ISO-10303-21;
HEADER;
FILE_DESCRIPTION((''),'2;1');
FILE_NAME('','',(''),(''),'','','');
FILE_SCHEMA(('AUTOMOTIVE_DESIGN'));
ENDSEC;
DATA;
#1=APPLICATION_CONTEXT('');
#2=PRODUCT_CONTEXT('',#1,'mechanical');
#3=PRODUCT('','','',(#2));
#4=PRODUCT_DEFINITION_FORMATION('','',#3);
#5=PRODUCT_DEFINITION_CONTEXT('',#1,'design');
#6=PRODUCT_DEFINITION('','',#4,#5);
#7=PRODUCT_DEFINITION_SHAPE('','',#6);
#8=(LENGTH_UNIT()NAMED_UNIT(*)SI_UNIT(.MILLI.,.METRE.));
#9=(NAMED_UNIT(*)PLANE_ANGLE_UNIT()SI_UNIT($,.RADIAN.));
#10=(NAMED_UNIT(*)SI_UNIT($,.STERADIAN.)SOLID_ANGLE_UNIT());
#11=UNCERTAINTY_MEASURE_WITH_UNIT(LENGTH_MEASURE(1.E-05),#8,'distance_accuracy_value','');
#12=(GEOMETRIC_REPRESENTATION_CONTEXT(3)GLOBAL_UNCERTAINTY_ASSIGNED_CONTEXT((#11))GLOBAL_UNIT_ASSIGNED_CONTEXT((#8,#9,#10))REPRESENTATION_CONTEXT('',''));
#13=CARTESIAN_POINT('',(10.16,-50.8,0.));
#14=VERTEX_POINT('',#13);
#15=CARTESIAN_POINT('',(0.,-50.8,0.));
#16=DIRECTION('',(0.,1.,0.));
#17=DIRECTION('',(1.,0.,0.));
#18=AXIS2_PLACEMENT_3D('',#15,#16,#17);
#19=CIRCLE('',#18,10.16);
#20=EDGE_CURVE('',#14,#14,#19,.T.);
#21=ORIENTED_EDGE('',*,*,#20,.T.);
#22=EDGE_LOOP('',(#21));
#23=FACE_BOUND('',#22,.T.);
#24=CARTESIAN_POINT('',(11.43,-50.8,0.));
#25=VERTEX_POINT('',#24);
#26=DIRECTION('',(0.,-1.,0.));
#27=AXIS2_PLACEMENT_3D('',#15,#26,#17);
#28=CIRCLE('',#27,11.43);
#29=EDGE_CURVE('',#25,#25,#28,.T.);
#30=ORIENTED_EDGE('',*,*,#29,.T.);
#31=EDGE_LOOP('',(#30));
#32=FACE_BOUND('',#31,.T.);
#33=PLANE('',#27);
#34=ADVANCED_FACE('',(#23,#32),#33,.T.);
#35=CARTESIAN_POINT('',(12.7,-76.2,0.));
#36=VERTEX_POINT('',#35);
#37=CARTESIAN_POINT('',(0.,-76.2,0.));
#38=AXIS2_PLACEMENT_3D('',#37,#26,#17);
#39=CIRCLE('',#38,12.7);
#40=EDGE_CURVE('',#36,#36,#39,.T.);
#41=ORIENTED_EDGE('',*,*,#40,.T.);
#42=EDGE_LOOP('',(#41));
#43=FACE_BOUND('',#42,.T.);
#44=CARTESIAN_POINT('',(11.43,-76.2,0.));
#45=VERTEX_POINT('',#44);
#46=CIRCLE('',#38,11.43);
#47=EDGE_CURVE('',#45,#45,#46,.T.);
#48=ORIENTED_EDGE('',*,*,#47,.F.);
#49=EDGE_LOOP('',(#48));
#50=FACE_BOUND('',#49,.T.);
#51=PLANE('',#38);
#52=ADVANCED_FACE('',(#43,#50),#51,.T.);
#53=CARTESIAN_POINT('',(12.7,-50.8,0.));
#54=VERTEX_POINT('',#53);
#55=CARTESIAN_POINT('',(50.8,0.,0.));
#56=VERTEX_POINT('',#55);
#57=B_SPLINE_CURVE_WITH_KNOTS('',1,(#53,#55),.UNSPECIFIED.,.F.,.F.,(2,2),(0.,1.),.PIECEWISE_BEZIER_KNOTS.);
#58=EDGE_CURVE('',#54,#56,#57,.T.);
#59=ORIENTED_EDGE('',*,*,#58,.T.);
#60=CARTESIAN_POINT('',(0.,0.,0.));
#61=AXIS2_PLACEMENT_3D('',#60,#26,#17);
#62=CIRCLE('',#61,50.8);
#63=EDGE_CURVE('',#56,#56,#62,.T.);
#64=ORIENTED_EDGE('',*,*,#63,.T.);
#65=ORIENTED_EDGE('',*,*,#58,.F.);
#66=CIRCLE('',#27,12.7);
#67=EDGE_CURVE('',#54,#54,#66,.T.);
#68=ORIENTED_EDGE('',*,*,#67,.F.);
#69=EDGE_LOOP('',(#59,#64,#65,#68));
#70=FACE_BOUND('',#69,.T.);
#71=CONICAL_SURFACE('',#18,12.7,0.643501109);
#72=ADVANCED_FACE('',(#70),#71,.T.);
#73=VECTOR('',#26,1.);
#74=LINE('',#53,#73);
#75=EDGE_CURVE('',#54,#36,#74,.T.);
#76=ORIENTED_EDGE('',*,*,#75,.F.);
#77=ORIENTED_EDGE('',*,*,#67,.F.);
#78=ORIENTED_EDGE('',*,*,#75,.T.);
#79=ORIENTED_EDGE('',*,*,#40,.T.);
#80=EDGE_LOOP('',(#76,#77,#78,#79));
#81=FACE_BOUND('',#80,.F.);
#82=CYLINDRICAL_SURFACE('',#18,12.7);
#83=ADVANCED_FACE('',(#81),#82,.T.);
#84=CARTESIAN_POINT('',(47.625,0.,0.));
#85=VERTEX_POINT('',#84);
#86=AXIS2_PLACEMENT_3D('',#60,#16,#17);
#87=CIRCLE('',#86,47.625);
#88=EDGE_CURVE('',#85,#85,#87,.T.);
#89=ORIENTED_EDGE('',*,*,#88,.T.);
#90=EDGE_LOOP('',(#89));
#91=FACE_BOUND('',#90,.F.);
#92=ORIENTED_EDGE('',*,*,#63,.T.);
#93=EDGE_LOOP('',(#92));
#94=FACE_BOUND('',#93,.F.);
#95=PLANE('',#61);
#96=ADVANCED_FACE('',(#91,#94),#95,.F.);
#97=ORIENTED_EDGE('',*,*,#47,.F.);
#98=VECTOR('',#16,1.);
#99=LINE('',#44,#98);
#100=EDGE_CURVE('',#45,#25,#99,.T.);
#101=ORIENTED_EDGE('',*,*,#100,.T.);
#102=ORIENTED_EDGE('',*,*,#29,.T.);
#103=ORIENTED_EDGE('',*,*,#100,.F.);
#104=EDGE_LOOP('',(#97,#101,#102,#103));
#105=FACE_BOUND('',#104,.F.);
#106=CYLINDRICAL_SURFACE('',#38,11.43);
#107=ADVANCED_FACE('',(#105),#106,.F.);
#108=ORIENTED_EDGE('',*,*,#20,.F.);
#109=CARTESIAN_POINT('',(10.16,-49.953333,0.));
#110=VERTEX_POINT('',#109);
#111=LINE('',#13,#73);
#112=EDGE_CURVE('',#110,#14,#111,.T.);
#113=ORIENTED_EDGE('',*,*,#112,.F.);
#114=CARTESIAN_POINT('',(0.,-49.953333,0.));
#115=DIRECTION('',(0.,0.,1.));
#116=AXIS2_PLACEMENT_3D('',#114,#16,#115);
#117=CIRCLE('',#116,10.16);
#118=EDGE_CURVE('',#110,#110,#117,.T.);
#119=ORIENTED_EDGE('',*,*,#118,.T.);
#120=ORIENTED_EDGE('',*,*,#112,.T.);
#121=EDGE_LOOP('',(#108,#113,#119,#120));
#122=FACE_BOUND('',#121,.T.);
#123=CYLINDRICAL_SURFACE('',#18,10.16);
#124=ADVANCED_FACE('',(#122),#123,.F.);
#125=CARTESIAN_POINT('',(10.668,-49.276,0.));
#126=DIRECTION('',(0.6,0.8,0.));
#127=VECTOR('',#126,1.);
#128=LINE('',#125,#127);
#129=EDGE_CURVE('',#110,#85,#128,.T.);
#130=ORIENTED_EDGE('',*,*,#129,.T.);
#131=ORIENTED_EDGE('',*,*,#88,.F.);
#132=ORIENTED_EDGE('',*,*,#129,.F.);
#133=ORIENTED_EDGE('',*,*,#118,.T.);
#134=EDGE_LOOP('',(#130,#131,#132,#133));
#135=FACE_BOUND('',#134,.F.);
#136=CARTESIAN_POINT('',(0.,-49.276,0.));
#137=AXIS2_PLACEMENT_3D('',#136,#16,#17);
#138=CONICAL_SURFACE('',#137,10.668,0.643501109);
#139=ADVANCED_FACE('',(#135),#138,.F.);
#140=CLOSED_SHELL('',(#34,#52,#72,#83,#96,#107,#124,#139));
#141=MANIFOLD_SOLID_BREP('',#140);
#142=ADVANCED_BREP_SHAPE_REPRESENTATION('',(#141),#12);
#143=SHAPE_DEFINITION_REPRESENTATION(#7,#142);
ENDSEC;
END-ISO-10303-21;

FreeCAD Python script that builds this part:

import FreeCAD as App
import Part
import Sketcher
Q = App.Units.Quantity


def faces_at(feature, points):
    """Names of the faces that lie closest to the given points."""
    faces = feature.Shape.Faces
    near = lambda p: min(range(len(faces)), key=lambda i: faces[i].distToShape(Part.Vertex(*p))[0])
    return sorted({f"Face{near(p) + 1}" for p in points})

doc = App.newDocument("Part")
params = doc.addObject("Spreadsheet::Sheet", "Params")
for row, (alias, value) in enumerate([
    ("sketch1_diameter", "1 in"),
    ("pad1_length", "1 in"),
    ("sketch2_diameter", "1 in"),
    ("sketch3_diameter", "4 in"),
    ("thickness_wall", "0.1 in"),
    ("sketch4_diameter", "0.9 in"),
    ("pocket1_length", "1 in"),
], start=1):
    params.set(f"A{row}", alias)
    params.set(f"B{row}", "=" + value)
    params.setAlias(f"B{row}", alias)

body = doc.addObject("PartDesign::Body", "Body")

sketch1 = body.newObject("Sketcher::SketchObject", "Sketch")
sketch1.AttachmentSupport = (doc.getObject("XZ_Plane"), [""])
sketch1.MapMode = "FlatFace"
sketch1.AttachmentOffset = App.Placement(App.Vector(0, 0, 2 * 25.4), App.Rotation())
sketch1.addGeometry(Part.Circle(App.Vector(0, 0, 0), App.Vector(0, 0, 1), 12.7), False)
sketch1.addConstraint([
    Sketcher.Constraint("Coincident", 0, 3, -1, 1),
    Sketcher.Constraint("Diameter", 0, Q("1 in")),
])
sketch1.setExpression("Constraints[1]", "Params.sketch1_diameter")
pad1 = body.newObject("PartDesign::Pad", "Pad")
pad1.Profile = sketch1
pad1.setExpression("Length", "Params.pad1_length")

sketch2 = body.newObject("Sketcher::SketchObject", "Sketch001")
sketch2.AttachmentSupport = (doc.getObject("XZ_Plane"), [""])
sketch2.MapMode = "FlatFace"
sketch2.AttachmentOffset = App.Placement(App.Vector(0, 0, 2 * 25.4), App.Rotation())
sketch2.addGeometry(Part.Circle(App.Vector(0, 0, 0), App.Vector(0, 0, 1), 12.7), False)
sketch2.addConstraint([
    Sketcher.Constraint("Coincident", 0, 3, -1, 1),
    Sketcher.Constraint("Diameter", 0, Q("1 in")),
])
sketch2.setExpression("Constraints[1]", "Params.sketch2_diameter")

sketch3 = body.newObject("Sketcher::SketchObject", "Sketch002")
sketch3.AttachmentSupport = (doc.getObject("XZ_Plane"), [""])
sketch3.MapMode = "FlatFace"
sketch3.addGeometry(Part.Circle(App.Vector(0, 0, 0), App.Vector(0, 0, 1), 50.8), False)
sketch3.addConstraint([
    Sketcher.Constraint("Coincident", 0, 3, -1, 1),
    Sketcher.Constraint("Diameter", 0, Q("4 in")),
])
sketch3.setExpression("Constraints[1]", "Params.sketch3_diameter")

additiveloft = body.newObject("PartDesign::AdditiveLoft", "AdditiveLoft")
additiveloft.Profile = sketch2
additiveloft.Sections = [sketch3]
doc.recompute()

thickness = body.newObject("PartDesign::Thickness", "Thickness")
thickness.Base = (additiveloft, faces_at(additiveloft, [(0, 0, 0)]))
thickness.setExpression("Value", "Params.thickness_wall")
thickness.Reversed = True
thickness.Join = "Intersection"

sketch4 = body.newObject("Sketcher::SketchObject", "Sketch003")
sketch4.AttachmentSupport = (doc.getObject("XZ_Plane"), [""])
sketch4.MapMode = "FlatFace"
sketch4.AttachmentOffset = App.Placement(App.Vector(0, 0, 3 * 25.4), App.Rotation())
sketch4.addGeometry(Part.Circle(App.Vector(0, 0, 0), App.Vector(0, 0, 1), 11.43), False)
sketch4.addConstraint([
    Sketcher.Constraint("Coincident", 0, 3, -1, 1),
    Sketcher.Constraint("Diameter", 0, Q("0.9 in")),
])
sketch4.setExpression("Constraints[1]", "Params.sketch4_diameter")
pocket1 = body.newObject("PartDesign::Pocket", "Pocket")
pocket1.Profile = sketch4
pocket1.setExpression("Length", "Params.pocket1_length")

doc.recompute()
